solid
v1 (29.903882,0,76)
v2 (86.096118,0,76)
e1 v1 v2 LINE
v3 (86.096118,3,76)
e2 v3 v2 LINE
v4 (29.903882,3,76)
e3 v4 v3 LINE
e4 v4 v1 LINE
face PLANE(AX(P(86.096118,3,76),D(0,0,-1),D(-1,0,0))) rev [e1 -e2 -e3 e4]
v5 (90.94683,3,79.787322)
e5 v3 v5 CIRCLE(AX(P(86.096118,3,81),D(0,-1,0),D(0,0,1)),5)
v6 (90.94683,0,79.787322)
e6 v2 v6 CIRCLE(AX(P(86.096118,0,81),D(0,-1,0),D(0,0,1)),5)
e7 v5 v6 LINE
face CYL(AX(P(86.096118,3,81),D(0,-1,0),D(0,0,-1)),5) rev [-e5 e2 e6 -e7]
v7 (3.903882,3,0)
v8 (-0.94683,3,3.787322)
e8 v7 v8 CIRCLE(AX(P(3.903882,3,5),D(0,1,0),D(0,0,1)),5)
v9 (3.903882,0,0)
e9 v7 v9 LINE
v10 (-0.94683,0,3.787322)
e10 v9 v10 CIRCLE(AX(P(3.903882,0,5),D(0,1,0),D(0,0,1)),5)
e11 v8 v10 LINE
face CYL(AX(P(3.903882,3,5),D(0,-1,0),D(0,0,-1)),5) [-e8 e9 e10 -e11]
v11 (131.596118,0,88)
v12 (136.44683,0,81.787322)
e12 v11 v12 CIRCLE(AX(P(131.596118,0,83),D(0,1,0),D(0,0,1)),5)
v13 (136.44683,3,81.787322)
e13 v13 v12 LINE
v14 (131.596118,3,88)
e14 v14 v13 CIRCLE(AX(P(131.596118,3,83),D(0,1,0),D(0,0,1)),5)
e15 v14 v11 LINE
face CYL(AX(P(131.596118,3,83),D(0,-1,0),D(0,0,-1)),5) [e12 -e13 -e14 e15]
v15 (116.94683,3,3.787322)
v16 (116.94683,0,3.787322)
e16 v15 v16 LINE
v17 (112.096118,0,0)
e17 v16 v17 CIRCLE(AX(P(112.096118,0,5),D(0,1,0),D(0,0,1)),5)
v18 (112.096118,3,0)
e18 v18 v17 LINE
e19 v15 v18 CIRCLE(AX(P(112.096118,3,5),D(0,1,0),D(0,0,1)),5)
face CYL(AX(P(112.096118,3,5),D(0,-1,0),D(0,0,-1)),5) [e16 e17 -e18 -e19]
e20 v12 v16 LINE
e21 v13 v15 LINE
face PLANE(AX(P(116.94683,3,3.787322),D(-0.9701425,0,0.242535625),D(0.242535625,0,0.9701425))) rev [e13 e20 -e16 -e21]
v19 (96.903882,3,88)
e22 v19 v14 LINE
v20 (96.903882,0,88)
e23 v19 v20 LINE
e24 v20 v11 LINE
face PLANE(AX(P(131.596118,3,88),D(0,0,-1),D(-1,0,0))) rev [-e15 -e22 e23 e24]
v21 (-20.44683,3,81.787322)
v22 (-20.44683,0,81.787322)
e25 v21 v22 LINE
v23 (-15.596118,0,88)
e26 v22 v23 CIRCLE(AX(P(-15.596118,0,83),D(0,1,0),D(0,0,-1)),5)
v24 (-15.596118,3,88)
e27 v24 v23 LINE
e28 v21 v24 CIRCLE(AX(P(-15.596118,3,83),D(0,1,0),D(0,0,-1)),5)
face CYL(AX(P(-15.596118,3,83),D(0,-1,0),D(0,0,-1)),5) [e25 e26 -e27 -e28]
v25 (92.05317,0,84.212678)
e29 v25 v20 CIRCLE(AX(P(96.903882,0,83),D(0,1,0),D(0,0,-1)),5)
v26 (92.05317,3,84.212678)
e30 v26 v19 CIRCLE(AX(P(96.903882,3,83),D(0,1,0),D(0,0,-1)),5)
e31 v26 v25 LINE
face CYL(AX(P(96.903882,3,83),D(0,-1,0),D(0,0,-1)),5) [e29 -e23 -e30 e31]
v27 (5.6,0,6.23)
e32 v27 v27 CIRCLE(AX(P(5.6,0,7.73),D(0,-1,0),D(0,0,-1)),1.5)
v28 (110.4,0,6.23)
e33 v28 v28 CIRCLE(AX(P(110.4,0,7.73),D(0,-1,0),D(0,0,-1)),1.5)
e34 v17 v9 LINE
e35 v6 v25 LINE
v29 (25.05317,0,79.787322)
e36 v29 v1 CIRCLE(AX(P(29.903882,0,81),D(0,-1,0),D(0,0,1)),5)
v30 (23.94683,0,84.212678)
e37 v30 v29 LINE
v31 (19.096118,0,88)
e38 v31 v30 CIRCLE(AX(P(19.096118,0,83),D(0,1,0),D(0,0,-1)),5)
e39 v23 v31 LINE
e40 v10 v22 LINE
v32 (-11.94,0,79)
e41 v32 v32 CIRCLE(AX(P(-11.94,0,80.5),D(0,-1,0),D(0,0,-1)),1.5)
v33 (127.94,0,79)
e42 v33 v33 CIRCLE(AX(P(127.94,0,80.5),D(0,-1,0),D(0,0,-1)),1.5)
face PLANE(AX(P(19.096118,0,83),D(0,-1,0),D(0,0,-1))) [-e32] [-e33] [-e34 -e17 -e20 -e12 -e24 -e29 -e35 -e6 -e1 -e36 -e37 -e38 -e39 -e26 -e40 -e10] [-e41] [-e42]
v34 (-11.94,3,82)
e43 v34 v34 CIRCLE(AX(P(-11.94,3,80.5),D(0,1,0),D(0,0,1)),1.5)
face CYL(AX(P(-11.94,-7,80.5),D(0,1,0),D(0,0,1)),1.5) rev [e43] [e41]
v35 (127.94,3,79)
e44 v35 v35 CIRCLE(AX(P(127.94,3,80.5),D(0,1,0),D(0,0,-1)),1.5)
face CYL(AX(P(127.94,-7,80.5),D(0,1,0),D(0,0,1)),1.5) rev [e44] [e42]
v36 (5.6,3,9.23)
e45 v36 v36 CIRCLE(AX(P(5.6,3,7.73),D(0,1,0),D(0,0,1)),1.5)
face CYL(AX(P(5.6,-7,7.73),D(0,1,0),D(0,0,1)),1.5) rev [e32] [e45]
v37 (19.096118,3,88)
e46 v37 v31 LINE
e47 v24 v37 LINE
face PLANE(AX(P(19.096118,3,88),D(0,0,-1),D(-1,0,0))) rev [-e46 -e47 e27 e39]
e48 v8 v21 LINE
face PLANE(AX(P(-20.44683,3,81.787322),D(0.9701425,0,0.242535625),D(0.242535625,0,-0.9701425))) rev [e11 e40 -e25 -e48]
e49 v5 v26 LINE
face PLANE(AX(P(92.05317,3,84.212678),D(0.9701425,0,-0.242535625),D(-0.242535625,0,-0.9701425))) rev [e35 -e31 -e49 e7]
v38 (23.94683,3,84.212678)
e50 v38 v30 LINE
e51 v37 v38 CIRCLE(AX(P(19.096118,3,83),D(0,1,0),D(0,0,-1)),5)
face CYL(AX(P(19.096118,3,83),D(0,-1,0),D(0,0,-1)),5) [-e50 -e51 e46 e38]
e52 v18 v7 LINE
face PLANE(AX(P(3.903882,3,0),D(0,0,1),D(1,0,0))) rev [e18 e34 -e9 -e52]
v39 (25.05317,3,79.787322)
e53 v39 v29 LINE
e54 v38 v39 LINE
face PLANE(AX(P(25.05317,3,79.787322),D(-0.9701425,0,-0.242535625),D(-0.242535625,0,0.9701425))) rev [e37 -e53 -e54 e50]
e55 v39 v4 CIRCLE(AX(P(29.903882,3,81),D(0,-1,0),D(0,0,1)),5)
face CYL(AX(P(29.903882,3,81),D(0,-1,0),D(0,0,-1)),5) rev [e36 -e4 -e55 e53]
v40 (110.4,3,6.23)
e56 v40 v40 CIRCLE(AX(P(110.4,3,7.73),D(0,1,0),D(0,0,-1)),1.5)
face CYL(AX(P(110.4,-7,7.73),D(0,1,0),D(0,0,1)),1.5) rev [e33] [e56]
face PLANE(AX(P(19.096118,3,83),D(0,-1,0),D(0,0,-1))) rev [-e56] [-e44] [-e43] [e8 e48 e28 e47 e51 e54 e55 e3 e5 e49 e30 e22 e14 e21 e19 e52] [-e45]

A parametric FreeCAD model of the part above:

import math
import FreeCAD as App
import Part
import Sketcher
from FreeCAD import Vector

doc = App.newDocument("Part")
body = doc.addObject("PartDesign::Body", "Body")

# Sketch on XZ plane
sketch1 = body.newObject("Sketcher::SketchObject", "Sketch")
sketch1.AttachmentSupport = (doc.getObject("XZ_Plane"), [""])
sketch1.MapMode = "FlatFace"
sketch1.addGeometry([
    Part.LineSegment(Vector(112.1, 0, 0), Vector(3.9, 0, 0)),  # 0
    Part.ArcOfCircle(Part.Circle(Vector(3.9, 5, 0), Vector(0, 0, 1), 5), math.radians(-166), math.radians(-90)),  # 1
    Part.LineSegment(Vector(-0.9, 3.8, 0), Vector(-20.4, 81.8, 0)),  # 2
    Part.ArcOfCircle(Part.Circle(Vector(-15.6, 83, 0), Vector(0, 0, 1), 5), math.radians(90), math.radians(194)),  # 3
    Part.LineSegment(Vector(-15.6, 88, 0), Vector(19.1, 88, 0)),  # 4
    Part.ArcOfCircle(Part.Circle(Vector(19.1, 83, 0), Vector(0, 0, 1), 5), math.radians(14), math.radians(90)),  # 5
    Part.LineSegment(Vector(23.9, 84.2, 0), Vector(25.1, 79.8, 0)),  # 6
    Part.ArcOfCircle(Part.Circle(Vector(29.9, 81, 0), Vector(0, 0, 1), 5), math.radians(-166), math.radians(-90)),  # 7
    Part.LineSegment(Vector(29.9, 76, 0), Vector(86.1, 76, 0)),  # 8
    Part.ArcOfCircle(Part.Circle(Vector(86.1, 81, 0), Vector(0, 0, 1), 5), math.radians(-90), math.radians(-14)),  # 9
    Part.LineSegment(Vector(90.9, 79.8, 0), Vector(92.1, 84.2, 0)),  # 10
    Part.ArcOfCircle(Part.Circle(Vector(96.9, 83, 0), Vector(0, 0, 1), 5), math.radians(90), math.radians(166)),  # 11
    Part.LineSegment(Vector(96.9, 88, 0), Vector(131.6, 88, 0)),  # 12
    Part.ArcOfCircle(Part.Circle(Vector(131.6, 83, 0), Vector(0, 0, 1), 5), math.radians(-14), math.radians(90)),  # 13
    Part.LineSegment(Vector(136.4, 81.8, 0), Vector(116.9, 3.8, 0)),  # 14
    Part.ArcOfCircle(Part.Circle(Vector(112.1, 5, 0), Vector(0, 0, 1), 5), math.radians(-90), math.radians(-14)),  # 15
], False)
sketch1.addConstraint([
    Sketcher.Constraint("Tangent", 0, 2, 1, 2),
    Sketcher.Constraint("Tangent", 1, 1, 2, 1),
    Sketcher.Constraint("Tangent", 2, 2, 3, 2),
    Sketcher.Constraint("Tangent", 3, 1, 4, 1),
    Sketcher.Constraint("Tangent", 4, 2, 5, 2),
    Sketcher.Constraint("Tangent", 5, 1, 6, 1),
    Sketcher.Constraint("Tangent", 6, 2, 7, 1),
    Sketcher.Constraint("Tangent", 7, 2, 8, 1),
    Sketcher.Constraint("Tangent", 8, 2, 9, 1),
    Sketcher.Constraint("Tangent", 9, 2, 10, 1),
    Sketcher.Constraint("Tangent", 10, 2, 11, 2),
    Sketcher.Constraint("Tangent", 11, 1, 12, 1),
    Sketcher.Constraint("Tangent", 12, 2, 13, 2),
    Sketcher.Constraint("Tangent", 13, 1, 14, 1),
    Sketcher.Constraint("Tangent", 14, 2, 15, 2),
    Sketcher.Constraint("Tangent", 15, 1, 0, 1),
    Sketcher.Constraint("Horizontal", 0),
    Sketcher.Constraint("Horizontal", 4),
    Sketcher.Constraint("Horizontal", 8),
    Sketcher.Constraint("Horizontal", 12),
    Sketcher.Constraint("Equal", 1, 3),
    Sketcher.Constraint("Equal", 3, 5),
    Sketcher.Constraint("Equal", 5, 7),
    Sketcher.Constraint("Equal", 7, 9),
    Sketcher.Constraint("Equal", 9, 11),
    Sketcher.Constraint("Equal", 11, 13),
    Sketcher.Constraint("Equal", 13, 15),
    Sketcher.Constraint("PointOnObject", 0, 2, -1),
    Sketcher.Constraint("Parallel", 2, 6),
    Sketcher.Constraint("Parallel", 10, 14),
    Sketcher.Constraint("Horizontal", 5, 3, 11, 3),
    Sketcher.Constraint("Horizontal", 6, 2, 9, 2),
    Sketcher.Constraint("Equal", 4, 12),
    Sketcher.Constraint("Radius", 1, 5.0),
    Sketcher.Constraint("DistanceY", -1, 1, 3, 3, 83.0),
    Sketcher.Constraint("DistanceY", -1, 1, 7, 3, 81.0),
    Sketcher.Constraint("DistanceX", 1, 3, 7, 3, 26.0),
    Sketcher.Constraint("DistanceX", 5, 3, 9, 3, 67.0),
    Sketcher.Constraint("DistanceX", 3, 3, 1, 3, 19.5),
    Sketcher.Constraint("DistanceX", 1, 1, -1, 1, 0.94683),
])
pad1 = body.newObject("PartDesign::Pad", "Pad")
pad1.Profile = sketch1
pad1.Length = 3
pad1.Reversed = True

# Sketch on XZ plane
sketch2 = body.newObject("Sketcher::SketchObject", "Sketch001")
sketch2.AttachmentSupport = (doc.getObject("XZ_Plane"), [""])
sketch2.MapMode = "FlatFace"
sketch2.AttachmentOffset = App.Placement(Vector(0, 0, -3), App.Rotation())
sketch2.addGeometry([
    Part.Circle(Vector(5.6, 7.7, 0), Vector(0, 0, 1), 1.5),
    Part.Circle(Vector(110.4, 7.7, 0), Vector(0, 0, 1), 1.5),
], False)
sketch2.addConstraint([
    Sketcher.Constraint("Equal", 0, 1),
    Sketcher.Constraint("Horizontal", 0, 3, 1, 3),
    Sketcher.Constraint("Diameter", 0, 3.0),
    Sketcher.Constraint("DistanceX", -1, 1, 0, 3, 5.6),
    Sketcher.Constraint("DistanceX", -1, 1, 1, 3, 110.4),
    Sketcher.Constraint("DistanceY", -1, 1, 0, 3, 7.73),
])
pocket1 = body.newObject("PartDesign::Pocket", "Pocket")
pocket1.Profile = sketch2
pocket1.Length = 10
pocket1.Reversed = True

# Sketch on XZ plane
sketch3 = body.newObject("Sketcher::SketchObject", "Sketch002")
sketch3.AttachmentSupport = (doc.getObject("XZ_Plane"), [""])
sketch3.MapMode = "FlatFace"
sketch3.AttachmentOffset = App.Placement(Vector(0, 0, -3), App.Rotation())
sketch3.addGeometry([
    Part.Circle(Vector(-11.9, 80.5, 0), Vector(0, 0, 1), 1.5),
    Part.Circle(Vector(127.9, 80.5, 0), Vector(0, 0, 1), 1.5),
], False)
sketch3.addConstraint([
    Sketcher.Constraint("Equal", 0, 1),
    Sketcher.Constraint("Horizontal", 0, 3, 1, 3),
    Sketcher.Constraint("Diameter", 0, 3.0),
    Sketcher.Constraint("DistanceY", -1, 1, 0, 3, 80.5),
    Sketcher.Constraint("DistanceX", 0, 3, -1, 1, 11.94),
    Sketcher.Constraint("DistanceX", -1, 1, 1, 3, 127.94),
])
pocket2 = body.newObject("PartDesign::Pocket", "Pocket001")
pocket2.Profile = sketch3
pocket2.Length = 10
pocket2.Reversed = True

doc.recompute()
